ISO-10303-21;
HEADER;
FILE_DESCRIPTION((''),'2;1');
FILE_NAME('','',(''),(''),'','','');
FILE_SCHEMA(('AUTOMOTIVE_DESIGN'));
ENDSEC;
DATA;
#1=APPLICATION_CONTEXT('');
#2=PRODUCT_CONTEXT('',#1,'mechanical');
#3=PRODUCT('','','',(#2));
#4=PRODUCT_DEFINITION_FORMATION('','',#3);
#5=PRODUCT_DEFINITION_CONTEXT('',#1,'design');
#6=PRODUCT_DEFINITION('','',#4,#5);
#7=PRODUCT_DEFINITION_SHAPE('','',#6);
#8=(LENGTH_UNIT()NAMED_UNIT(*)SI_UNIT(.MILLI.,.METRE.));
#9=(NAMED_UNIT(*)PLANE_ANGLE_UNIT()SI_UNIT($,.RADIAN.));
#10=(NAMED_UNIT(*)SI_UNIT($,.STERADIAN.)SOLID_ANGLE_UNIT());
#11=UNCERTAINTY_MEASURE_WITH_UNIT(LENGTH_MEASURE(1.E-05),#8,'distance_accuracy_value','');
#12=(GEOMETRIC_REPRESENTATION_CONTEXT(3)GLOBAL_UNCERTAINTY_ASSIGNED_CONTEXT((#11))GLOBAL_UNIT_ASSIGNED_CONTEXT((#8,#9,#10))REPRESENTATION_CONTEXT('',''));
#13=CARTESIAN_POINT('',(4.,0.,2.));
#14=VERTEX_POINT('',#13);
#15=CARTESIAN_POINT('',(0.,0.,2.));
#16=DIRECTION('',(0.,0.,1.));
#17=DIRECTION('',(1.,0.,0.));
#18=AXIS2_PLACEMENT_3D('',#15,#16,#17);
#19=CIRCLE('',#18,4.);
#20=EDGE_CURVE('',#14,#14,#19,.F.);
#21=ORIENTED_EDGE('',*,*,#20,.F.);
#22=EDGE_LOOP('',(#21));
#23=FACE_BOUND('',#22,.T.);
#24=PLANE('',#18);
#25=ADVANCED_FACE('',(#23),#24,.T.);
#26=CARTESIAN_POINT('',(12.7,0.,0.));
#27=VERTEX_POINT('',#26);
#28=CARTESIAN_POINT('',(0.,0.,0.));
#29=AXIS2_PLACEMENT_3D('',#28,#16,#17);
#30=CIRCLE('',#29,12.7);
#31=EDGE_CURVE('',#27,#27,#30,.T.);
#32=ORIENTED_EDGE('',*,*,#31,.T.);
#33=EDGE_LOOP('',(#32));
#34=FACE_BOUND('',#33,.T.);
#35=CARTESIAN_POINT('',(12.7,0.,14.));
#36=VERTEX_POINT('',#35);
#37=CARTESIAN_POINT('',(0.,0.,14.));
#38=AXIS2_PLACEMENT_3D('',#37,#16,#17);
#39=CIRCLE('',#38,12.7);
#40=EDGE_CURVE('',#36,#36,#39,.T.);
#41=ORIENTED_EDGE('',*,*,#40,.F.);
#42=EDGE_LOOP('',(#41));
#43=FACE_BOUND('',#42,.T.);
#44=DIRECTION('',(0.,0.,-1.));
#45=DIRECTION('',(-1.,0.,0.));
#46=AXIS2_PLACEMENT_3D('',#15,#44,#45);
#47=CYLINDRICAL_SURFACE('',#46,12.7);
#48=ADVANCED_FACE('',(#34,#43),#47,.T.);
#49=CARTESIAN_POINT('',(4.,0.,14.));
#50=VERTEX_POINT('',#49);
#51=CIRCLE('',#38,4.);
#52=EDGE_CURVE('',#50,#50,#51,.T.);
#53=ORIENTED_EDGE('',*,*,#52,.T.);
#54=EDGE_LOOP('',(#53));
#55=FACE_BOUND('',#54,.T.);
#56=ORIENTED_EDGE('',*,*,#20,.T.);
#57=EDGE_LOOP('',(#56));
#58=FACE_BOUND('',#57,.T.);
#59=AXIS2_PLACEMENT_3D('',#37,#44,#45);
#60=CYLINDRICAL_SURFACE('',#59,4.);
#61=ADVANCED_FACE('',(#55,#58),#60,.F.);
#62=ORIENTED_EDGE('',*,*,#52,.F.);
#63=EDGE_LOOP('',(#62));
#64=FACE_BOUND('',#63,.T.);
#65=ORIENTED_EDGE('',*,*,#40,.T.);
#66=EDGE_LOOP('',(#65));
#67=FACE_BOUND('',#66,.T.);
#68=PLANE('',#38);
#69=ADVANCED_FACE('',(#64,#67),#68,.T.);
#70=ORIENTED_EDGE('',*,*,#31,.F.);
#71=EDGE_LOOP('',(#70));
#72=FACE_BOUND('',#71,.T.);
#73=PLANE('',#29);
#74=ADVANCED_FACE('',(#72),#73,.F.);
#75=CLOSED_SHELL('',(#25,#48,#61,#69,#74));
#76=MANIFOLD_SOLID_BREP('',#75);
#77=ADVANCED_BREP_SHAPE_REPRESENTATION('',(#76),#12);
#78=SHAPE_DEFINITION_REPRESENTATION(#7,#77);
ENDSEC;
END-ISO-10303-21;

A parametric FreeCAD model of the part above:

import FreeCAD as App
import Part
import Sketcher
Q = App.Units.Quantity

doc = App.newDocument("Part")
body = doc.addObject("PartDesign::Body", "Body")

sketch1 = body.newObject("Sketcher::SketchObject", "Sketch")
sketch1.AttachmentSupport = (doc.getObject("XY_Plane"), [""])
sketch1.MapMode = "FlatFace"
sketch1.addGeometry(Part.Circle(App.Vector(0, 0, 0), App.Vector(0, 0, 1), 13), False)
sketch1.addConstraint(Sketcher.Constraint("Coincident", 0, 3, -1, 1))
sketch1.addConstraint(Sketcher.Constraint("Diameter", 0, Q("25.4 mm")))
pad1 = body.newObject("PartDesign::Pad", "Pad")
pad1.Profile = sketch1
pad1.Length = 2

sketch2 = body.newObject("Sketcher::SketchObject", "Sketch001")
sketch2.AttachmentSupport = (doc.getObject("XY_Plane"), [""])
sketch2.MapMode = "FlatFace"
sketch2.AttachmentOffset = App.Placement(App.Vector(0, 0, 2), App.Rotation())
sketch2.addGeometry(Part.Circle(App.Vector(0, 0, 0), App.Vector(0, 0, 1), 12.7), False)
sketch2.addGeometry(Part.Circle(App.Vector(0, 0, 0), App.Vector(0, 0, 1), 4), False)
sketch2.addConstraint(Sketcher.Constraint("Coincident", 0, 3, -1, 1))
sketch2.addConstraint(Sketcher.Constraint("Coincident", 1, 3, -1, 1))
sketch2.addConstraint(Sketcher.Constraint("Diameter", 1, Q("8 mm")))
sketch2.addConstraint(Sketcher.Constraint("Diameter", 0, Q("25.4 mm")))
pad2 = body.newObject("PartDesign::Pad", "Pad001")
pad2.Profile = sketch2
pad2.Length = 12

doc.recompute()
